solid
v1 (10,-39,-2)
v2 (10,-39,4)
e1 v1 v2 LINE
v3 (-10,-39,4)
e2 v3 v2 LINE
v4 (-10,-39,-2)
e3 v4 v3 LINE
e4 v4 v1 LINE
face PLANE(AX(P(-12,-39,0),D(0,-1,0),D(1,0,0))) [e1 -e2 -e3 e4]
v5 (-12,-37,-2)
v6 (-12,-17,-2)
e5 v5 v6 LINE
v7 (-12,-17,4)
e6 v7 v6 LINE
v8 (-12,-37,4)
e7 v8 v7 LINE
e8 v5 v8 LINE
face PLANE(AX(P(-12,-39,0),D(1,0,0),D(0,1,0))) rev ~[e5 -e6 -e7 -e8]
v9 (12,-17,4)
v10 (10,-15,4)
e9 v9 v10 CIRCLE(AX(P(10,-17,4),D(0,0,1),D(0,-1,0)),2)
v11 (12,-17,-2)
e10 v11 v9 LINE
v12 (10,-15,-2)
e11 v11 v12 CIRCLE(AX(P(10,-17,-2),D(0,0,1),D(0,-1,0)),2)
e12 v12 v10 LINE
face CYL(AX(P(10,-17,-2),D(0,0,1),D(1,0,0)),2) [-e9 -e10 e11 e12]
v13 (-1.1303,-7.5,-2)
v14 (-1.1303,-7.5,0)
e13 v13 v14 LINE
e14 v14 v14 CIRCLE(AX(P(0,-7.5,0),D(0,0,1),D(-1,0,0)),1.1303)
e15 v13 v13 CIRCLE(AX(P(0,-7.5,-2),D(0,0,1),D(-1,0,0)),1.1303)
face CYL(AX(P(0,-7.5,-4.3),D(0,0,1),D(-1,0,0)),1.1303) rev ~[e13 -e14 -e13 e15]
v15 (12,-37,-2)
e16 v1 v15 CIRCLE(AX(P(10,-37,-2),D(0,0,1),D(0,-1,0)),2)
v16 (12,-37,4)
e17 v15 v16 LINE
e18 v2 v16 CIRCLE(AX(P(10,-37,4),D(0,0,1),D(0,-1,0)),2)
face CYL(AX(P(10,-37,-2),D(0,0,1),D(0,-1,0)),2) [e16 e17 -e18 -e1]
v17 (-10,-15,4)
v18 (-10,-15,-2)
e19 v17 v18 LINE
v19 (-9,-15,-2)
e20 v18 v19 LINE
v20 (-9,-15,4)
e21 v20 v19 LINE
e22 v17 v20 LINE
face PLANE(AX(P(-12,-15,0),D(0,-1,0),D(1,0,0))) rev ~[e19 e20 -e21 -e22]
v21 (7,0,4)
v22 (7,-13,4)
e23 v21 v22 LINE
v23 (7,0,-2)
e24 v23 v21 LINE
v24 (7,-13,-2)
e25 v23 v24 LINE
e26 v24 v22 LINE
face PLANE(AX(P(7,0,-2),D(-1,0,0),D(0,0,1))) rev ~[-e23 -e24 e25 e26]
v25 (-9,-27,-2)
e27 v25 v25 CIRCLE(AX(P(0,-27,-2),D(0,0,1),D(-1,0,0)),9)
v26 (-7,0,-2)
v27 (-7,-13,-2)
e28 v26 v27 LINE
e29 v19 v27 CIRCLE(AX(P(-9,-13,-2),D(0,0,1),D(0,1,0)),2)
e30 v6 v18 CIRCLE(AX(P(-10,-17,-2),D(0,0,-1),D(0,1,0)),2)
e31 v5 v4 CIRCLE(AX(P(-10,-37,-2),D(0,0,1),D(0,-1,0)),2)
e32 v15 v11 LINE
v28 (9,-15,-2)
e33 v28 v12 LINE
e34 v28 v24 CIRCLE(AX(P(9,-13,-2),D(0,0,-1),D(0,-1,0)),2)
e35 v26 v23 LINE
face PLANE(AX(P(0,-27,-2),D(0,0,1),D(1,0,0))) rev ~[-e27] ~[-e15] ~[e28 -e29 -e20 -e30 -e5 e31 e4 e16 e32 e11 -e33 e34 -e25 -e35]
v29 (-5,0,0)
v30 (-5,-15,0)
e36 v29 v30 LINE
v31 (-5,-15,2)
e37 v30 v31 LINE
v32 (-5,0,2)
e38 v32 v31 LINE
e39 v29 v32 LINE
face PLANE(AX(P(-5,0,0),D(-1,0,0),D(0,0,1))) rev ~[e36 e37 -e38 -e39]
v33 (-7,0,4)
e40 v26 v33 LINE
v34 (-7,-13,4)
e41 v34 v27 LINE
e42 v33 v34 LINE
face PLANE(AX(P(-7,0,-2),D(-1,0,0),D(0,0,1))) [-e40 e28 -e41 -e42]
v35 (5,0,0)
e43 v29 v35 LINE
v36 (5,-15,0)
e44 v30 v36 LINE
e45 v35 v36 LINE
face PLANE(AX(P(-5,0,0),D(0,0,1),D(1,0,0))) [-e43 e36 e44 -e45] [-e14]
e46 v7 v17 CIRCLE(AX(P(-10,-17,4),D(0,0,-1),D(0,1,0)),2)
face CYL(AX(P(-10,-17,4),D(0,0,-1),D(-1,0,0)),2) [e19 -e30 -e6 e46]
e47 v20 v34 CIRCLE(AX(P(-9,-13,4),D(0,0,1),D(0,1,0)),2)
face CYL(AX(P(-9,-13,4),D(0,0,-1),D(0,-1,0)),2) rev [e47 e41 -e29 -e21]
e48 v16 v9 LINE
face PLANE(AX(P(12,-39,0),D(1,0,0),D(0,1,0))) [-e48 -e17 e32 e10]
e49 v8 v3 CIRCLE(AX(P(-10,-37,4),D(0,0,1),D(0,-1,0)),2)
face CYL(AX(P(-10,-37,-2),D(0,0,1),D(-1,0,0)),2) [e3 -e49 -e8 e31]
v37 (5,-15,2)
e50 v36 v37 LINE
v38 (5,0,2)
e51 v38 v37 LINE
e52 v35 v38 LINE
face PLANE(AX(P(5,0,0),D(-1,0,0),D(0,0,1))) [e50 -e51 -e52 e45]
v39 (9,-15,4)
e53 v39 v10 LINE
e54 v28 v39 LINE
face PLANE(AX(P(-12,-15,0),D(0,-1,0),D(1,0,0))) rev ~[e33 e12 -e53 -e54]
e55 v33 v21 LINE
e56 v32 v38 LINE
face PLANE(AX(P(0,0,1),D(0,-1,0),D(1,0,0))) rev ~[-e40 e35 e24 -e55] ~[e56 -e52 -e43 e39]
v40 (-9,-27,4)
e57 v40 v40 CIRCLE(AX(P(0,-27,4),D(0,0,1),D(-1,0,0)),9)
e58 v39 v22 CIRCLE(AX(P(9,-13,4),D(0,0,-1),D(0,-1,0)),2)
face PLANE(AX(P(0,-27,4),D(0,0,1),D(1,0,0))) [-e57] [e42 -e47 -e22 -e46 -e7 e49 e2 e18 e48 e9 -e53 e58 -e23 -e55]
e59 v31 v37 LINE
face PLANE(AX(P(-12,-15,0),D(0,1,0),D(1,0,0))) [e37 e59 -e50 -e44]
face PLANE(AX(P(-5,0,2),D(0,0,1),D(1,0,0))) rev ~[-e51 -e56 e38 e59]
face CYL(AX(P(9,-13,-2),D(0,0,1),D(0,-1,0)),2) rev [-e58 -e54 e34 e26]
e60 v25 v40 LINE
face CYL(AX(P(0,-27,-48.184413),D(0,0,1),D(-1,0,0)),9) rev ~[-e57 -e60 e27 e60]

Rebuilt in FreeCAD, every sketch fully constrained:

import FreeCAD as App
import Part
import Sketcher

V = App.Vector


def edges_at(feature, points):
    """Names of the edges that pass closest to the given points."""
    edges = feature.Shape.Edges
    near = lambda p: min(range(len(edges)), key=lambda i: edges[i].distToShape(Part.Vertex(*p))[0])
    return sorted({f"Edge{near(p) + 1}" for p in points})


def add_polygon(sketch, points):
    """Adds a closed chain of lines whose ends are joined by coincident constraints."""
    first, n = sketch.GeometryCount, len(points)
    for a, b in zip(points, points[1:] + points[:1]):
        sketch.addGeometry(Part.LineSegment(App.Vector(*a, 0), App.Vector(*b, 0)), False)
    for i in range(n):
        sketch.addConstraint(Sketcher.Constraint("Coincident", first + i, 2, first + (i + 1) % n, 1))

doc = App.newDocument("Part")
body = doc.addObject("PartDesign::Body", "Body")

# Sketch on XZ plane
sketch1 = body.newObject("Sketcher::SketchObject", "Sketch")
sketch1.AttachmentSupport = (doc.getObject("XZ_Plane"), [""])
sketch1.MapMode = "FlatFace"
add_polygon(sketch1, [(-7, 4), (-7, -2), (7, -2), (7, 4)])  # lines 0-3
add_polygon(sketch1, [(5, 0), (-5, 0), (-5, 2), (5, 2)])  # lines 4-7
sketch1.addConstraint(Sketcher.Constraint("Vertical", 0))
sketch1.addConstraint(Sketcher.Constraint("Horizontal", 1))
sketch1.addConstraint(Sketcher.Constraint("Vertical", 2))
sketch1.addConstraint(Sketcher.Constraint("Horizontal", 3))
sketch1.addConstraint(Sketcher.Constraint("Horizontal", 4))
sketch1.addConstraint(Sketcher.Constraint("Vertical", 5))
sketch1.addConstraint(Sketcher.Constraint("Horizontal", 6))
sketch1.addConstraint(Sketcher.Constraint("Vertical", 7))
sketch1.addConstraint(Sketcher.Constraint("Symmetric", 4, 2, 7, 2, -1, 1))
sketch1.addConstraint(Sketcher.Constraint("DistanceX", 1, 1, 1, 2, 14.0))
sketch1.addConstraint(Sketcher.Constraint("DistanceX", 4, 2, 4, 1, 10.0))
sketch1.addConstraint(Sketcher.Constraint("DistanceY", 0, 2, 0, 1, 6.0))
sketch1.addConstraint(Sketcher.Constraint("DistanceY", 5, 1, 5, 2, 2.0))
sketch1.addConstraint(Sketcher.Constraint("DistanceX", 0, 2, -1, 1, 7.0))
sketch1.addConstraint(Sketcher.Constraint("DistanceY", 0, 2, -1, 1, 2.0))
pad1 = body.newObject("PartDesign::Pad", "Pad")
pad1.Profile = sketch1
pad1.Length = 15

# Sketch on XY plane
sketch2 = body.newObject("Sketcher::SketchObject", "Sketch001")
sketch2.AttachmentSupport = (doc.getObject("XY_Plane"), [""])
sketch2.MapMode = "FlatFace"
add_polygon(sketch2, [(-12, -15), (-12, -39), (12, -39), (12, -15)])  # lines 0-3
sketch2.addConstraint(Sketcher.Constraint("Vertical", 0))
sketch2.addConstraint(Sketcher.Constraint("Horizontal", 1))
sketch2.addConstraint(Sketcher.Constraint("Vertical", 2))
sketch2.addConstraint(Sketcher.Constraint("Horizontal", 3))
sketch2.addConstraint(Sketcher.Constraint("Equal", 3, 0))
sketch2.addConstraint(Sketcher.Constraint("DistanceX", 1, 1, 1, 2, 24.0))
sketch2.addConstraint(Sketcher.Constraint("DistanceX", 0, 2, -1, 1, 12.0))
sketch2.addConstraint(Sketcher.Constraint("DistanceY", 0, 2, -1, 1, 39.0))
pad2 = body.newObject("PartDesign::Pad", "Pad001")
pad2.Profile = sketch2
pad2.Type = "TwoLengths"
pad2.Length = 4
pad2.Length2 = 2

# Sketch on XY plane
sketch3 = body.newObject("Sketcher::SketchObject", "Sketch002")
sketch3.AttachmentSupport = (doc.getObject("XY_Plane"), [""])
sketch3.MapMode = "FlatFace"
sketch3.AttachmentOffset = App.Placement(V(0, 0, -2), App.Rotation())
sketch3.addGeometry(Part.Circle(V(0, -27, 0), V(0, 0, 1), 9), False)
sketch3.addConstraint(Sketcher.Constraint("PointOnObject", 0, 3, -2))
sketch3.addConstraint(Sketcher.Constraint("Diameter", 0, 18.0))
sketch3.addConstraint(Sketcher.Constraint("DistanceY", 0, 3, -1, 1, 27.0))
doc.recompute()
hole = body.newObject("PartDesign::Hole", "Hole")
hole.Profile = sketch3
hole.ThreadType = "None"
hole.Diameter = 18
hole.DepthType = "ThroughAll"
hole.Reversed = True
doc.recompute()

fillet = body.newObject("PartDesign::Fillet", "Fillet")
fillet.Base = (hole, edges_at(hole, [
    (12, -39, 1),
    (12, -15, 1),
    (7, -15, 1),
    (-12, -39, 1),
    (-12, -15, 1),
    (-7, -15, 1),
]))
fillet.Radius = 2

# Sketch on XY plane
sketch4 = body.newObject("Sketcher::SketchObject", "Sketch003")
sketch4.AttachmentSupport = (doc.getObject("XY_Plane"), [""])
sketch4.MapMode = "FlatFace"
sketch4.AttachmentOffset = App.Placement(V(0, 0, -2), App.Rotation())
sketch4.addGeometry(Part.Circle(V(0, -7.5, 0), V(0, 0, 1), 1.1), False)
sketch4.addConstraint(Sketcher.Constraint("PointOnObject", 0, 3, -2))
sketch4.addConstraint(Sketcher.Constraint("Diameter", 0, 2.2606))
sketch4.addConstraint(Sketcher.Constraint("DistanceY", 0, 3, -1, 1, 7.5))
doc.recompute()
hole2 = body.newObject("PartDesign::Hole", "Hole001")
hole2.Profile = sketch4
hole2.ThreadType = "None"
hole2.Diameter = 2.2606
hole2.DepthType = "Dimension"
hole2.Depth = 2.3
hole2.DrillPoint = "Angled"
hole2.DrillPointAngle = 118
hole2.Reversed = True

doc.recompute()
